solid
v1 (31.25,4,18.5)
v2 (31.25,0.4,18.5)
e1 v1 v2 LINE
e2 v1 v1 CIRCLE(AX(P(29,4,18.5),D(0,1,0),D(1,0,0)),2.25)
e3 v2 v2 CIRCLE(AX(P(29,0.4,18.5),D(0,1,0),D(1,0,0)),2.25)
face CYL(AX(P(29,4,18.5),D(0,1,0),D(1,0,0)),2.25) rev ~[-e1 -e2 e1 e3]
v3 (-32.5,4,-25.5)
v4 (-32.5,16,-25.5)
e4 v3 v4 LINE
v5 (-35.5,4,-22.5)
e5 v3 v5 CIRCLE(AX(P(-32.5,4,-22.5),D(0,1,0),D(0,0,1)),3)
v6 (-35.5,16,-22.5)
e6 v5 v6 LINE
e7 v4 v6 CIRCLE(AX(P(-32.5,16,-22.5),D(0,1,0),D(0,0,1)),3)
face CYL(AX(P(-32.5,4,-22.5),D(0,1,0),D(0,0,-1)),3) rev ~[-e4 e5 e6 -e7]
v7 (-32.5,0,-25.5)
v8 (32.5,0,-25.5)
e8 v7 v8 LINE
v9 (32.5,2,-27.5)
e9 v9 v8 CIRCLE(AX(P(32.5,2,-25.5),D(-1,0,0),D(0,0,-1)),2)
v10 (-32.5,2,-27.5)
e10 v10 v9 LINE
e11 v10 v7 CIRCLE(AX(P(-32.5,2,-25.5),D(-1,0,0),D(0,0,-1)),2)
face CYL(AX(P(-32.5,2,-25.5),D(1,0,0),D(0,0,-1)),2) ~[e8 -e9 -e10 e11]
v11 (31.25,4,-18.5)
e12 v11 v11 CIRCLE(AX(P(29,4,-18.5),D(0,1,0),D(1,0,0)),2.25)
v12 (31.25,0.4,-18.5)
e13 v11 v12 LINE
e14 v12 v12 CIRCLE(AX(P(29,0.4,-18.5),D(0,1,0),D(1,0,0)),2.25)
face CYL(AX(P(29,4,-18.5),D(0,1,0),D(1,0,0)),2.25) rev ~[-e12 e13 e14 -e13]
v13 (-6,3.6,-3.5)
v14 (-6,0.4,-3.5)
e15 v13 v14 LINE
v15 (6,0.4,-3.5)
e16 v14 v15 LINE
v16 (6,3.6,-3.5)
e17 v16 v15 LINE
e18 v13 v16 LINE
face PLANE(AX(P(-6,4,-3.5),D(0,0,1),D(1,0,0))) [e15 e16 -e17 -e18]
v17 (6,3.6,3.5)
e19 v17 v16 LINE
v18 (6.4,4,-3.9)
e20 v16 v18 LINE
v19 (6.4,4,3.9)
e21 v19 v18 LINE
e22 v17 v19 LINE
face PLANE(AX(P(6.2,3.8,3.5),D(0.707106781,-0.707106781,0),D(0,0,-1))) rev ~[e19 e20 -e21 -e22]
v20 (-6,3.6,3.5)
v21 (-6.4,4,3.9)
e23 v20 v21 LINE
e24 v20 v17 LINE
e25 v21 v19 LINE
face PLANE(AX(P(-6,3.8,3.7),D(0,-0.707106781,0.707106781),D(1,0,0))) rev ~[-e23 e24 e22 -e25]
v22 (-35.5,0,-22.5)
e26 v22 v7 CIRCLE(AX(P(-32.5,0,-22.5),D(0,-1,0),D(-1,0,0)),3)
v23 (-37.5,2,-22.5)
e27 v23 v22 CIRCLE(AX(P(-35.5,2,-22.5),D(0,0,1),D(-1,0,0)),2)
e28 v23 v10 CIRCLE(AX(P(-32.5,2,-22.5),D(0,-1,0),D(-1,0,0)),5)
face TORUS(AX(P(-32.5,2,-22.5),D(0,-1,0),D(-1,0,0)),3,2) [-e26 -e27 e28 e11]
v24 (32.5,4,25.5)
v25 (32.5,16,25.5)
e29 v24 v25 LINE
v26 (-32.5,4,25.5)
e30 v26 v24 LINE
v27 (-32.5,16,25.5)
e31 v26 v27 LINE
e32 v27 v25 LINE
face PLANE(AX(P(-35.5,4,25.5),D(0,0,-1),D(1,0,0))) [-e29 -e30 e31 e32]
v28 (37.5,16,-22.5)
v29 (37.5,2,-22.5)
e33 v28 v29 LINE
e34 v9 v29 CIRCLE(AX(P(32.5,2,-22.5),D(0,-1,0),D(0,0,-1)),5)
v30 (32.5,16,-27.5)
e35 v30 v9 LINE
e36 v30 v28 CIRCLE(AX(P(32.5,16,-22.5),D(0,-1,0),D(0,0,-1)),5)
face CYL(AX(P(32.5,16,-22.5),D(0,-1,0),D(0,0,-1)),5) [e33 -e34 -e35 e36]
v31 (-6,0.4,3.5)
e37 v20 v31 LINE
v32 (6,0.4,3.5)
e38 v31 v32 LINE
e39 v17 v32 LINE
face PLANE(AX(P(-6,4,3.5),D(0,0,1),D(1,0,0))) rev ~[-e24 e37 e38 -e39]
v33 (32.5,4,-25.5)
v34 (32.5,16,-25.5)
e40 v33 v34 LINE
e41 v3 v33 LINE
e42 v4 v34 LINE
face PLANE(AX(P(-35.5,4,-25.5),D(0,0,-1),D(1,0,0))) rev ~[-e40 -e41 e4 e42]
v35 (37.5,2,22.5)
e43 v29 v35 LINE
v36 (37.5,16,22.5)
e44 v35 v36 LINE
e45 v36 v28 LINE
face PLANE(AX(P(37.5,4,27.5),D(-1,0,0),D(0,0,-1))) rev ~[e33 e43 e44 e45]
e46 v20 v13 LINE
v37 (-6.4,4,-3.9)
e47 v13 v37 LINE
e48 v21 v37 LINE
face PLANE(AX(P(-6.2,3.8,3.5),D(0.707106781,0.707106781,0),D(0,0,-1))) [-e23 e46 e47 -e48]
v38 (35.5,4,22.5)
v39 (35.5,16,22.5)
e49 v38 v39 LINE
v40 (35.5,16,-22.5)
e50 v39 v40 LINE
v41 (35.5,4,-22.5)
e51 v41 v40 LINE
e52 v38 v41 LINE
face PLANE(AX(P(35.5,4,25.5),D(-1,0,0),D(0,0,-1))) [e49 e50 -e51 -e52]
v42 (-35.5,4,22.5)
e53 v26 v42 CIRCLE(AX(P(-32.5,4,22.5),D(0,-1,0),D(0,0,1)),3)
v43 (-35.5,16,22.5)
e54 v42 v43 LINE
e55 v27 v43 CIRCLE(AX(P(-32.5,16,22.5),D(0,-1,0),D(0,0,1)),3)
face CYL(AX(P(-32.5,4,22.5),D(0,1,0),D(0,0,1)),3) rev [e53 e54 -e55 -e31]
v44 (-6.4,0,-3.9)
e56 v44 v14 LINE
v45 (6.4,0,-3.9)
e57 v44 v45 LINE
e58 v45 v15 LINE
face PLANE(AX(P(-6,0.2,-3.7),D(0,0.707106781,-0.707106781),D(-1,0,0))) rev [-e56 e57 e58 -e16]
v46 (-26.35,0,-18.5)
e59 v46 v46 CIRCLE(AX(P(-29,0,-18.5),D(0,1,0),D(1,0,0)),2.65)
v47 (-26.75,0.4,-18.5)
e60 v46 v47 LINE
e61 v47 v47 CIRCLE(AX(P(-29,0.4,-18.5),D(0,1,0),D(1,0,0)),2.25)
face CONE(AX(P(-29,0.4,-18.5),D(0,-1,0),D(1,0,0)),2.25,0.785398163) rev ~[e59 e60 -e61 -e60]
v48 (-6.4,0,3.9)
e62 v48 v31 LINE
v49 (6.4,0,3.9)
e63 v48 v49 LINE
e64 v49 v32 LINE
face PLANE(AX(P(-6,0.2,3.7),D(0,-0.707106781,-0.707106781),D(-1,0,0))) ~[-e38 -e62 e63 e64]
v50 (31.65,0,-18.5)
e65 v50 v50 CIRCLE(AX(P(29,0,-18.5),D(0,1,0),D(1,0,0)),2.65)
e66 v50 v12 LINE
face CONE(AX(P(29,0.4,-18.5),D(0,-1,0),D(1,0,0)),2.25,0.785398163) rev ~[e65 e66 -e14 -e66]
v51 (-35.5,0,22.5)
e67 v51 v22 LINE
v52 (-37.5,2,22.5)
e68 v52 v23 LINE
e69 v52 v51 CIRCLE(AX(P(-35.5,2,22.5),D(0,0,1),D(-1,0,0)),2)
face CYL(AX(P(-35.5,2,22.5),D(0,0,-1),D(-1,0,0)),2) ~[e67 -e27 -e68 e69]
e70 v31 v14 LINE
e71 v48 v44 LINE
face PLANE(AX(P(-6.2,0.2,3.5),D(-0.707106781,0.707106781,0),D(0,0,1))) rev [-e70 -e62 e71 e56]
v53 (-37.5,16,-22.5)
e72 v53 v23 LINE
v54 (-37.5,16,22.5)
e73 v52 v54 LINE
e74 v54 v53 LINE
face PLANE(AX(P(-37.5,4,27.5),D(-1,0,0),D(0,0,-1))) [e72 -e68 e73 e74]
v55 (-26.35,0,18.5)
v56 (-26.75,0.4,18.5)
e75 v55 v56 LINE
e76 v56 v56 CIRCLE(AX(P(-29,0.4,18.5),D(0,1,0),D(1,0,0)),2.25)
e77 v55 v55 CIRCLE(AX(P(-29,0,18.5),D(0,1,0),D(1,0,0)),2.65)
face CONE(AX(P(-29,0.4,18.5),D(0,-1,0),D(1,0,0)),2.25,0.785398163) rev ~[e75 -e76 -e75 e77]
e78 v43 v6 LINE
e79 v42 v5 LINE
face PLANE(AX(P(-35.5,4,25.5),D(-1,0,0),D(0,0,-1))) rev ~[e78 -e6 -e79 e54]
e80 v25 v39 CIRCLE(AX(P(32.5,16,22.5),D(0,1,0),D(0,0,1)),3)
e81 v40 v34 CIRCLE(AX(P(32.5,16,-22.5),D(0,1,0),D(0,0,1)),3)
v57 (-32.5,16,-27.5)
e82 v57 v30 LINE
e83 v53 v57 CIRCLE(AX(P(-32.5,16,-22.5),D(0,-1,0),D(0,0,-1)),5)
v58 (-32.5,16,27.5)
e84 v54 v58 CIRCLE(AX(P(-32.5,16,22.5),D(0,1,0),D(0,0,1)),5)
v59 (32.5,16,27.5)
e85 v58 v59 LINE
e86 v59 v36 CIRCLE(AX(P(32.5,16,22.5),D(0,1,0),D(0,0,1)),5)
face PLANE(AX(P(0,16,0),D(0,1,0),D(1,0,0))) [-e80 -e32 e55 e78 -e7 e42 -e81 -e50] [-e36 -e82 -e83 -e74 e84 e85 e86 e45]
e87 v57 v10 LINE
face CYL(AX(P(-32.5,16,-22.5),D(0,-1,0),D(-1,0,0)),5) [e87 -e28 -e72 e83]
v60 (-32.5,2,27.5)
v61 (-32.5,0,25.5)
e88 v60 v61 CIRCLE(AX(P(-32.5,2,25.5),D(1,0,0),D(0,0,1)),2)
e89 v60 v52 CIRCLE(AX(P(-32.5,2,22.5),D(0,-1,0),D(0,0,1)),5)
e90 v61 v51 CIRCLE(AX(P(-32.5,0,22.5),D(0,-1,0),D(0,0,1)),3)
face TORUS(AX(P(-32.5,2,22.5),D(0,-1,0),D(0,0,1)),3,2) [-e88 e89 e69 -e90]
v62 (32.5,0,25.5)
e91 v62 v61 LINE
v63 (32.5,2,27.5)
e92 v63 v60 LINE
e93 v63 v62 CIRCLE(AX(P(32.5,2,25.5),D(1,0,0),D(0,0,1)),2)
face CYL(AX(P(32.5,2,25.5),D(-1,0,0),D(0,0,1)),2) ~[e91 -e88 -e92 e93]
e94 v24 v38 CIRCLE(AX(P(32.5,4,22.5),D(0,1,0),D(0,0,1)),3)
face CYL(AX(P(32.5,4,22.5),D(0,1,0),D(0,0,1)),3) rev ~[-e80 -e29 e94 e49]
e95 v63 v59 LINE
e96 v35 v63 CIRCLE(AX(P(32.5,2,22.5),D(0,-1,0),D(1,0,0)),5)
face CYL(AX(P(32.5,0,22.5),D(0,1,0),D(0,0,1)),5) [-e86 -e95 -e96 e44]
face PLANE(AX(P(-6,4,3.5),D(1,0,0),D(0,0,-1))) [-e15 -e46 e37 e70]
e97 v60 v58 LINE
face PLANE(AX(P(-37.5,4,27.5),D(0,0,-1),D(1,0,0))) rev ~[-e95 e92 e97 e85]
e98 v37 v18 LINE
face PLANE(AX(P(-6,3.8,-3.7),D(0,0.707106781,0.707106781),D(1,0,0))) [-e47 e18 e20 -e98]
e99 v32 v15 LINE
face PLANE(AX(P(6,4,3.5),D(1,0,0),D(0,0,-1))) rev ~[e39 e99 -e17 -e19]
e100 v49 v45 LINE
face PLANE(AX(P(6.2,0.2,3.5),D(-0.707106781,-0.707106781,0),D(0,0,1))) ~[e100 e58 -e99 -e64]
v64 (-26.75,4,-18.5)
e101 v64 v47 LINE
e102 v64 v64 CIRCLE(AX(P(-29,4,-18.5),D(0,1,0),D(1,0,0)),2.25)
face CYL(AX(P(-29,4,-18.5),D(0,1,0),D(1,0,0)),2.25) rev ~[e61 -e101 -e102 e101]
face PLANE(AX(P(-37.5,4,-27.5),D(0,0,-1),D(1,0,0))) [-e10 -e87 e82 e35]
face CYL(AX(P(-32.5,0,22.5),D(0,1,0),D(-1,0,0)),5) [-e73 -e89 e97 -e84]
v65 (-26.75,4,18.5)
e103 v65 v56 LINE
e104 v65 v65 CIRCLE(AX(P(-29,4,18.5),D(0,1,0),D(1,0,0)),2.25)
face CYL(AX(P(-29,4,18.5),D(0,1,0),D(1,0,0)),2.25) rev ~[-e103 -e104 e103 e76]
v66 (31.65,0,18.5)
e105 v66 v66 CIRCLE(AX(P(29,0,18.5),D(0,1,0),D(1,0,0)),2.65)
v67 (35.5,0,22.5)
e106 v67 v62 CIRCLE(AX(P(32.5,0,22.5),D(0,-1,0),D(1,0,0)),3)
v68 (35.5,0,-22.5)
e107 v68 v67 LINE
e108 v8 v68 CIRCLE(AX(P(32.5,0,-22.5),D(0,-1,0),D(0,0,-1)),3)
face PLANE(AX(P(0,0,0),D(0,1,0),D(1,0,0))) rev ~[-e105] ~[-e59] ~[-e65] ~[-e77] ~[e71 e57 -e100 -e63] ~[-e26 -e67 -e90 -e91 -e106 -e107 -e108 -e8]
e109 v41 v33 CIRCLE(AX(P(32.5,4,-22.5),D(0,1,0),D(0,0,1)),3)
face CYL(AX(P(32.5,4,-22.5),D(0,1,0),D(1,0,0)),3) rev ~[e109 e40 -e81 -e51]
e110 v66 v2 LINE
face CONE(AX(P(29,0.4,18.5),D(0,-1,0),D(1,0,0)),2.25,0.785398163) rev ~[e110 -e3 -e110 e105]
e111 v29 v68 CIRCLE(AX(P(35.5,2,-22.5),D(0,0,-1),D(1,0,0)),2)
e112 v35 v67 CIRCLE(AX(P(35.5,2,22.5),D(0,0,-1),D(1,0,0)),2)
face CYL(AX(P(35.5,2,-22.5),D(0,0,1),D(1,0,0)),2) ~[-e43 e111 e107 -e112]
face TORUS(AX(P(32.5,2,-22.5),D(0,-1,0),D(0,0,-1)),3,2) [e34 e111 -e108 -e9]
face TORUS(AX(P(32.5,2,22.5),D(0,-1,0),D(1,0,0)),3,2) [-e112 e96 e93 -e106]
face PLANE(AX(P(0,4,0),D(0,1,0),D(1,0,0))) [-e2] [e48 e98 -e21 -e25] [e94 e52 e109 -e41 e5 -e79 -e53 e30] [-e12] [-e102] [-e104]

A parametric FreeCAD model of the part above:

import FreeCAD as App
import Part
import Sketcher

V = App.Vector
Q = App.Units.Quantity


def edges_at(feature, points):
    """Names of the edges that pass closest to the given points."""
    edges = feature.Shape.Edges
    near = lambda p: min(range(len(edges)), key=lambda i: edges[i].distToShape(Part.Vertex(*p))[0])
    return sorted({f"Edge{near(p) + 1}" for p in points})


def add_polygon(sketch, points):
    """Adds a closed chain of lines whose ends are joined by coincident constraints."""
    first, n = sketch.GeometryCount, len(points)
    for a, b in zip(points, points[1:] + points[:1]):
        sketch.addGeometry(Part.LineSegment(App.Vector(*a, 0), App.Vector(*b, 0)), False)
    for i in range(n):
        sketch.addConstraint(Sketcher.Constraint("Coincident", first + i, 2, first + (i + 1) % n, 1))

doc = App.newDocument("Part")
body = doc.addObject("PartDesign::Body", "Body")

sketch1 = body.newObject("Sketcher::SketchObject", "Sketch")
sketch1.AttachmentSupport = (doc.getObject("XZ_Plane"), [""])
sketch1.MapMode = "FlatFace"
add_polygon(sketch1, [(-37.5, -27.5), (-37.5, 27.5), (37.5, 27.5), (37.5, -27.5)])
sketch1.addConstraint([
    Sketcher.Constraint("Vertical", 0),
    Sketcher.Constraint("Horizontal", 1),
    Sketcher.Constraint("Vertical", 2),
    Sketcher.Constraint("Horizontal", 3),
    Sketcher.Constraint("Symmetric", 0, 2, 2, 2, -1, 1),
    Sketcher.Constraint("DistanceX", 1, 1, 1, 2, Q("75 mm")),
    Sketcher.Constraint("DistanceY", 0, 1, 0, 2, Q("55 mm")),
])
pad1 = body.newObject("PartDesign::Pad", "Pad")
pad1.Profile = sketch1
pad1.Length = 4
pad1.Reversed = True

sketch2 = body.newObject("Sketcher::SketchObject", "Sketch001")
sketch2.AttachmentSupport = (doc.getObject("XZ_Plane"), [""])
sketch2.MapMode = "FlatFace"
sketch2.AttachmentOffset = App.Placement(V(0, 0, -4), App.Rotation())
add_polygon(sketch2, [(-37.5, -27.5), (-37.5, 27.5), (37.5, 27.5), (37.5, -27.5)])
add_polygon(sketch2, [(35.5, 25.5), (-35.5, 25.5), (-35.5, -25.5), (35.5, -25.5)])
sketch2.addConstraint([
    Sketcher.Constraint("Vertical", 0),
    Sketcher.Constraint("Horizontal", 1),
    Sketcher.Constraint("Vertical", 2),
    Sketcher.Constraint("Horizontal", 3),
    Sketcher.Constraint("Horizontal", 4),
    Sketcher.Constraint("Vertical", 5),
    Sketcher.Constraint("Horizontal", 6),
    Sketcher.Constraint("Vertical", 7),
    Sketcher.Constraint("Symmetric", 0, 2, 2, 2, -1, 1),
    Sketcher.Constraint("Symmetric", 4, 2, 6, 2, -1, 1),
    Sketcher.Constraint("DistanceX", 1, 1, 1, 2, Q("75 mm")),
    Sketcher.Constraint("DistanceX", 4, 2, 4, 1, Q("71 mm")),
    Sketcher.Constraint("DistanceY", 0, 1, 0, 2, Q("55 mm")),
    Sketcher.Constraint("DistanceY", 5, 2, 5, 1, Q("51 mm")),
])
pad2 = body.newObject("PartDesign::Pad", "Pad001")
pad2.Profile = sketch2
pad2.Length = 12
pad2.Reversed = True

sketch3 = body.newObject("Sketcher::SketchObject", "Sketch002")
sketch3.AttachmentSupport = (doc.getObject("XZ_Plane"), [""])
sketch3.MapMode = "FlatFace"
sketch3.AttachmentOffset = App.Placement(V(0, 0, -4), App.Rotation())
sketch3.addGeometry(Part.Circle(V(-29, -18.5, 0), V(0, 0, 1), 2.25), False)
sketch3.addGeometry(Part.Circle(V(29, -18.5, 0), V(0, 0, 1), 2.25), False)
sketch3.addGeometry(Part.Circle(V(29, 18.5, 0), V(0, 0, 1), 2.25), False)
sketch3.addGeometry(Part.Circle(V(-29, 18.5, 0), V(0, 0, 1), 2.25), False)
add_polygon(sketch3, [(-6, -3.5), (-6, 3.5), (6, 3.5), (6, -3.5)])
sketch3.addConstraint([
    Sketcher.Constraint("Vertical", 4),
    Sketcher.Constraint("Horizontal", 5),
    Sketcher.Constraint("Vertical", 6),
    Sketcher.Constraint("Horizontal", 7),
    Sketcher.Constraint("Equal", 0, 1),
    Sketcher.Constraint("Equal", 1, 2),
    Sketcher.Constraint("Equal", 2, 3),
    Sketcher.Constraint("Symmetric", 0, 3, 2, 3, -1, 1),
    Sketcher.Constraint("Symmetric", 1, 3, 3, 3, -1, 1),
    Sketcher.Constraint("Symmetric", 4, 2, 6, 2, -1, 1),
    Sketcher.Constraint("Symmetric", 0, 3, 1, 3, -2),
    Sketcher.Constraint("Diameter", 0, Q("4.5 mm")),
    Sketcher.Constraint("DistanceX", 5, 1, 5, 2, Q("12 mm")),
    Sketcher.Constraint("DistanceY", 4, 1, 4, 2, Q("7 mm")),
    Sketcher.Constraint("DistanceX", 0, 3, -1, 1, Q("29 mm")),
    Sketcher.Constraint("DistanceY", 1, 3, 2, 3, Q("37 mm")),
])
pocket1 = body.newObject("PartDesign::Pocket", "Pocket")
pocket1.Profile = sketch3
pocket1.Type = "ThroughAll"
pocket1.Reversed = True
doc.recompute()

fillet = body.newObject("PartDesign::Fillet", "Fillet")
fillet.Base = (pocket1, edges_at(pocket1, [
    (37.5, 8, 27.5),
    (-37.5, 8, 27.5),
    (-37.5, 8, -27.5),
    (37.5, 8, -27.5),
]))
fillet.Radius = 5
doc.recompute()

fillet2 = body.newObject("PartDesign::Fillet", "Fillet001")
fillet2.Base = (fillet, edges_at(fillet, [
    (35.5, 10, -25.5),
    (-35.5, 10, -25.5),
    (-35.5, 10, 25.5),
    (35.5, 10, 25.5),
]))
fillet2.Radius = 3
doc.recompute()

fillet3 = body.newObject("PartDesign::Fillet", "Fillet002")
fillet3.Base = (fillet2, edges_at(fillet2, [
    (-37.5, 0, 0),
    (37.5, 0, 0),
    (0, 0, 27.5),
    (0, 0, -27.5),
    (-36.036, 0, 26.036),
    (36.036, 0, 26.036),
    (36.036, 0, -26.036),
    (-36.036, 0, -26.036),
]))
fillet3.Radius = 2
doc.recompute()

chamfer = body.newObject("PartDesign::Chamfer", "Chamfer")
chamfer.Base = (fillet3, edges_at(fillet3, [
    (6, 0, 0),
    (0, 0, 3.5),
    (-6, 0, 0),
    (0, 0, -3.5),
    (6, 4, 0),
    (0, 4, -3.5),
    (-6, 4, 0),
    (0, 4, 3.5),
    (-31.25, 0, 18.5),
    (26.75, 0, 18.5),
    (26.75, 0, -18.5),
    (-31.25, 0, -18.5),
]))
chamfer.Size = 0.4

doc.recompute()
